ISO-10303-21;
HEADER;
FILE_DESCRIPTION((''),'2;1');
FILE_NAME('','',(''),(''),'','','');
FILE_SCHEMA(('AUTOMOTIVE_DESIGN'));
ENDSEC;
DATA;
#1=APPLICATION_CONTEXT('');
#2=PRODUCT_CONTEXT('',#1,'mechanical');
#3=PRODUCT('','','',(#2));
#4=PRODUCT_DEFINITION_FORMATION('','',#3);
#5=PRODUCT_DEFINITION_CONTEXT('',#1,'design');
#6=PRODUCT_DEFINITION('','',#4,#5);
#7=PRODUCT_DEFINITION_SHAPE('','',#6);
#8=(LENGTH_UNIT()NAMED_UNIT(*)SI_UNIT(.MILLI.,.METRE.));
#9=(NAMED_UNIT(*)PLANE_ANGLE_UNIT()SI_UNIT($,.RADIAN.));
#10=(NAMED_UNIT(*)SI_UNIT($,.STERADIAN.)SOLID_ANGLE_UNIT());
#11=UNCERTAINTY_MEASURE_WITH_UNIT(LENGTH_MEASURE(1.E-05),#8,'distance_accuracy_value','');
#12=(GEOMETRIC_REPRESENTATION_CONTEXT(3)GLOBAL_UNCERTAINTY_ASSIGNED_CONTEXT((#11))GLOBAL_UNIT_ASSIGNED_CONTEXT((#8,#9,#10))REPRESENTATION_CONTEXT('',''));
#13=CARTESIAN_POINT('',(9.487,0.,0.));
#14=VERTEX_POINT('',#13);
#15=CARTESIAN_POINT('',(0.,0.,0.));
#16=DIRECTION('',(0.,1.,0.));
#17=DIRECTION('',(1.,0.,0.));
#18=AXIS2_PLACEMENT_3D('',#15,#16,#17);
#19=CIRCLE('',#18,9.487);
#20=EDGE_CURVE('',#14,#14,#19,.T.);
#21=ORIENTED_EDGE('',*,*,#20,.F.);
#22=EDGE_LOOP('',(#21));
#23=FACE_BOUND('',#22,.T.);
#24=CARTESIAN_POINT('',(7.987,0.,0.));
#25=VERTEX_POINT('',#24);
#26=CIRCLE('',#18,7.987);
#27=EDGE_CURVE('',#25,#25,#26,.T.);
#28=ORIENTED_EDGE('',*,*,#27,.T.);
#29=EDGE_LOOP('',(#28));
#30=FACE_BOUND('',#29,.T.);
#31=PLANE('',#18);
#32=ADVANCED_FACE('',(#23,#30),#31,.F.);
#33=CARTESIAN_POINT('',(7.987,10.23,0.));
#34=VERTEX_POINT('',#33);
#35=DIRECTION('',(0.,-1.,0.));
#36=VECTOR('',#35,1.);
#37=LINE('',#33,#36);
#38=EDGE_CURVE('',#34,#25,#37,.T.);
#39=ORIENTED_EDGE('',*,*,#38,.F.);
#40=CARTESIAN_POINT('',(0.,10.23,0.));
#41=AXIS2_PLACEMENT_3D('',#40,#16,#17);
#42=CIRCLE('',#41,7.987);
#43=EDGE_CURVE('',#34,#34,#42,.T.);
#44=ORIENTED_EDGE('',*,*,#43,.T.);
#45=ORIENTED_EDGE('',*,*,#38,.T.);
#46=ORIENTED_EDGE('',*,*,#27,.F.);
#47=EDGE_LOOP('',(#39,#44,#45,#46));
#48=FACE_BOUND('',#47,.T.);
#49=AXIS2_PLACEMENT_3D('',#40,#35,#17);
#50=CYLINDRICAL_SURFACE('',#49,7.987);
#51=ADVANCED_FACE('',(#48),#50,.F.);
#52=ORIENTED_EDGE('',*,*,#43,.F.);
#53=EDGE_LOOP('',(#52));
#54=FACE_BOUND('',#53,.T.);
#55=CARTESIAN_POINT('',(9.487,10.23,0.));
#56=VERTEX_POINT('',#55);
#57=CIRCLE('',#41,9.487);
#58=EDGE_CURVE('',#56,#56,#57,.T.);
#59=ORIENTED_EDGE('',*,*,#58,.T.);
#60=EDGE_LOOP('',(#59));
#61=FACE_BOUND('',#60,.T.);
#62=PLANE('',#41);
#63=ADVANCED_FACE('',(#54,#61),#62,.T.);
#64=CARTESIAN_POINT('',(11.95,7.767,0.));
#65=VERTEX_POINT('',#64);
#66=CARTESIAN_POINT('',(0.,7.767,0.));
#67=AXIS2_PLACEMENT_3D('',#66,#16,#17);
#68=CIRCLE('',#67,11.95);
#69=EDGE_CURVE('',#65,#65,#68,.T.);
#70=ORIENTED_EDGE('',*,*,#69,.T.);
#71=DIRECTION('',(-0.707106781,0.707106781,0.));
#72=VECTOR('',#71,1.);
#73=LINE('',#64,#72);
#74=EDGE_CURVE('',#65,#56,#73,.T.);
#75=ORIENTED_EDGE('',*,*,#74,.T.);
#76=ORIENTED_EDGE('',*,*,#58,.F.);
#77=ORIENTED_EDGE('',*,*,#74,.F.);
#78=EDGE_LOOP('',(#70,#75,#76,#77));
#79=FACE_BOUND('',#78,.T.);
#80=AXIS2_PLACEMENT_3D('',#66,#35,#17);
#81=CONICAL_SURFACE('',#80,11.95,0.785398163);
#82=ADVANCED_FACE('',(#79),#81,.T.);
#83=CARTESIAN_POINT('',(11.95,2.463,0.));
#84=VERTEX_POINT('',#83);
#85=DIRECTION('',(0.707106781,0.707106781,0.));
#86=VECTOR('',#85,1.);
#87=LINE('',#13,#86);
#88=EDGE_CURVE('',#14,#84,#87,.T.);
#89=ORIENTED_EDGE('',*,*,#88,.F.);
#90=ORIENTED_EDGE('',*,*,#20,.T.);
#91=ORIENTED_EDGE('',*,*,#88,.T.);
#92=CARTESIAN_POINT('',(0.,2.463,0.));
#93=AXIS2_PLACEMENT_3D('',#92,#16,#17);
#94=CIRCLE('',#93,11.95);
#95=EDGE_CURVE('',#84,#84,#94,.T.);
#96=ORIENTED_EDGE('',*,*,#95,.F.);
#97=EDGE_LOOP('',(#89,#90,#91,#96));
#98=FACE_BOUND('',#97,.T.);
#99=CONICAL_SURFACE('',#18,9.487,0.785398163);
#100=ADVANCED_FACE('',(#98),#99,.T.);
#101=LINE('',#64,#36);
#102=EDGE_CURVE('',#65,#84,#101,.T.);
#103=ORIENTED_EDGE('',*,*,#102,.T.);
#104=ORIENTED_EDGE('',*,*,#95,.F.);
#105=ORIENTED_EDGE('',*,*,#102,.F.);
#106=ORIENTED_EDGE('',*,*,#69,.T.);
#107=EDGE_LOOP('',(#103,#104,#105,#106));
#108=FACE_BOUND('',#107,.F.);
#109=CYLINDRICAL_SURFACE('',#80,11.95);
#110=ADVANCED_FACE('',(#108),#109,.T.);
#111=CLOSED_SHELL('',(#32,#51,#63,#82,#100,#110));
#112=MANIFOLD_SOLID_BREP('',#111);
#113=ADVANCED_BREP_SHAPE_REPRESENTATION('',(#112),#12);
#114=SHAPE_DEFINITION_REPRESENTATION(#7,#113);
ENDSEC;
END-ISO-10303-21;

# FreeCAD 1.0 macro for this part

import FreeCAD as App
import Part
import Sketcher
from FreeCAD import Vector
Q = App.Units.Quantity


def add_polygon(sketch, points):
    """Adds a closed chain of lines whose ends are joined by coincident constraints."""
    first, n = sketch.GeometryCount, len(points)
    for a, b in zip(points, points[1:] + points[:1]):
        sketch.addGeometry(Part.LineSegment(App.Vector(*a, 0), App.Vector(*b, 0)), False)
    for i in range(n):
        sketch.addConstraint(Sketcher.Constraint("Coincident", first + i, 2, first + (i + 1) % n, 1))

doc = App.newDocument("Part")
body = doc.addObject("PartDesign::Body", "Body")

# Sketch on XY plane
sketch1 = doc.addObject("Sketcher::SketchObject", "Sketch")
body.addObject(sketch1)
sketch1.AttachmentSupport = (doc.XY_Plane, [""])
sketch1.MapMode = "FlatFace"
add_polygon(sketch1, [(8, 10.2), (8, 0), (9.5, 0), (11.9, 2.5), (11.9, 7.8), (9.5, 10.2)])  # lines 0-5
sketch1.addConstraint([
    Sketcher.Constraint("Vertical", 0),
    Sketcher.Constraint("Horizontal", 1),
    Sketcher.Constraint("Vertical", 3),
    Sketcher.Constraint("Horizontal", 5),
    Sketcher.Constraint("PointOnObject", 0, 2, -1),
    Sketcher.Constraint("Perpendicular", 2, 4),
    Sketcher.Constraint("Vertical", 1, 2, 4, 2),
    Sketcher.Constraint("Equal", 2, 4),
    Sketcher.Constraint("DistanceX", 1, 1, 1, 2, Q("1.5 mm")),
    Sketcher.Constraint("DistanceY", 0, 2, 0, 1, Q("10.23 mm")),
    Sketcher.Constraint("DistanceY", 3, 1, 3, 2, Q("5.304 mm")),
    Sketcher.Constraint("DistanceX", -1, 1, 2, 2, Q("11.95 mm")),
])
revolution = doc.addObject("PartDesign::Revolution", "Revolution")
body.addObject(revolution)
revolution.Profile = sketch1
revolution.ReferenceAxis = (sketch1, ["V_Axis"])
revolution.Angle = 360

doc.recompute()
